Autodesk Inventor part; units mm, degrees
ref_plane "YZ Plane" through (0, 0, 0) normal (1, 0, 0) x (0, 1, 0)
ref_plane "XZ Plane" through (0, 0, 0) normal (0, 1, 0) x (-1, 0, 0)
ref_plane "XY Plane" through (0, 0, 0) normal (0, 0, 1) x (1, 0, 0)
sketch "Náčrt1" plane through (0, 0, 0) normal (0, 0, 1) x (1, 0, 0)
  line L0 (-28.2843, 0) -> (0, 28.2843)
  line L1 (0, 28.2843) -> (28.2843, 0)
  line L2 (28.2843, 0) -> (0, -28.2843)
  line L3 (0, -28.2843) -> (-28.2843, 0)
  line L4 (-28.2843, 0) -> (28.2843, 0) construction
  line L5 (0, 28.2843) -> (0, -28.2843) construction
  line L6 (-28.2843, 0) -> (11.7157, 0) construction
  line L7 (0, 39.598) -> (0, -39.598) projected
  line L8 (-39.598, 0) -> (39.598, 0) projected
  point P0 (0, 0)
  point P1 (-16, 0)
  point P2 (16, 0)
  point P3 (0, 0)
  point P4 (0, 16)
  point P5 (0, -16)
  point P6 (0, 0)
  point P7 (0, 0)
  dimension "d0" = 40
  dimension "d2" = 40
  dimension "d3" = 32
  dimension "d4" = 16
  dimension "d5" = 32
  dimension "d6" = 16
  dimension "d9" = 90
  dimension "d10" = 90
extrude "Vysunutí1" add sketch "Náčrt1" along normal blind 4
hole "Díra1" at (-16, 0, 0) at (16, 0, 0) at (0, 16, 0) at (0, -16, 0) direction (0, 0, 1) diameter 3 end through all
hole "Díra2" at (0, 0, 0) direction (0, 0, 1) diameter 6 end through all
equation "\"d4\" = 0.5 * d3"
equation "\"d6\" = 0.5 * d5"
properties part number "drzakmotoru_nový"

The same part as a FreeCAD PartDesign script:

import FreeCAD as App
import Part
import Sketcher
from FreeCAD import Vector
Q = App.Units.Quantity

doc = App.newDocument("Part")
body = doc.addObject("PartDesign::Body", "Body")

sketch1 = body.newObject("Sketcher::SketchObject", "Sketch")
sketch1.AttachmentSupport = (doc.getObject("XY_Plane"), [""])
sketch1.MapMode = "FlatFace"
sketch1.addGeometry([
    Part.LineSegment(Vector(-28.2843, 0, 0), Vector(0, -28.2843, 0)),
    Part.LineSegment(Vector(0, -28.2843, 0), Vector(28.2843, 0, 0)),
    Part.LineSegment(Vector(28.2843, 0, 0), Vector(0, 28.2843, 0)),
    Part.LineSegment(Vector(0, 28.2843, 0), Vector(-28.2843, 0, 0)),
], False)
sketch1.addConstraint([
    Sketcher.Constraint("Coincident", 0, 2, 1, 1),
    Sketcher.Constraint("Coincident", 1, 2, 2, 1),
    Sketcher.Constraint("Coincident", 2, 2, 3, 1),
    Sketcher.Constraint("Coincident", 3, 2, 0, 1),
    Sketcher.Constraint("Symmetric", 0, 2, 2, 2, -1, 1),
    Sketcher.Constraint("Symmetric", 1, 2, 3, 2, -1, 1),
    Sketcher.Constraint("PointOnObject", 0, 2, -2),
    Sketcher.Constraint("PointOnObject", 1, 2, -1),
    Sketcher.Constraint("Perpendicular", 0, 1),
    Sketcher.Constraint("Distance", 0, Q("40 mm")),
])
pad1 = body.newObject("PartDesign::Pad", "Pad")
pad1.Profile = sketch1
pad1.Length = 4

sketch2 = body.newObject("Sketcher::SketchObject", "Sketch001")
sketch2.AttachmentSupport = (doc.getObject("XY_Plane"), [""])
sketch2.MapMode = "FlatFace"
sketch2.addGeometry([
    Part.Circle(Vector(-16, 0, 0), Vector(0, 0, 1), 1.5),
    Part.Circle(Vector(16, 0, 0), Vector(0, 0, 1), 1.5),
    Part.Circle(Vector(0, 16, 0), Vector(0, 0, 1), 1.5),
    Part.Circle(Vector(0, -16, 0), Vector(0, 0, 1), 1.5),
], False)
sketch2.addConstraint([
    Sketcher.Constraint("Equal", 0, 1),
    Sketcher.Constraint("Equal", 1, 2),
    Sketcher.Constraint("Equal", 2, 3),
    Sketcher.Constraint("Symmetric", 0, 3, 1, 3, -1, 1),
    Sketcher.Constraint("Symmetric", 2, 3, 3, 3, -1, 1),
    Sketcher.Constraint("PointOnObject", 0, 3, -1),
    Sketcher.Constraint("PointOnObject", 2, 3, -2),
    Sketcher.Constraint("Diameter", 0, Q("3 mm")),
    Sketcher.Constraint("DistanceX", 0, 3, -1, 1, Q("16 mm")),
    Sketcher.Constraint("DistanceY", -1, 1, 2, 3, Q("16 mm")),
])
doc.recompute()
hole = body.newObject("PartDesign::Hole", "Hole")
hole.Profile = sketch2
hole.ThreadType = "None"
hole.Diameter = 3
hole.DepthType = "ThroughAll"
hole.Reversed = True

sketch3 = body.newObject("Sketcher::SketchObject", "Sketch002")
sketch3.AttachmentSupport = (doc.getObject("XY_Plane"), [""])
sketch3.MapMode = "FlatFace"
sketch3.addGeometry(Part.Circle(Vector(0, 0, 0), Vector(0, 0, 1), 3), False)
sketch3.addConstraint([
    Sketcher.Constraint("Coincident", 0, 3, -1, 1),
    Sketcher.Constraint("Diameter", 0, Q("6 mm")),
])
doc.recompute()
hole2 = body.newObject("PartDesign::Hole", "Hole001")
hole2.Profile = sketch3
hole2.ThreadType = "None"
hole2.Diameter = 6
hole2.DepthType = "ThroughAll"
hole2.Reversed = True

doc.recompute()
